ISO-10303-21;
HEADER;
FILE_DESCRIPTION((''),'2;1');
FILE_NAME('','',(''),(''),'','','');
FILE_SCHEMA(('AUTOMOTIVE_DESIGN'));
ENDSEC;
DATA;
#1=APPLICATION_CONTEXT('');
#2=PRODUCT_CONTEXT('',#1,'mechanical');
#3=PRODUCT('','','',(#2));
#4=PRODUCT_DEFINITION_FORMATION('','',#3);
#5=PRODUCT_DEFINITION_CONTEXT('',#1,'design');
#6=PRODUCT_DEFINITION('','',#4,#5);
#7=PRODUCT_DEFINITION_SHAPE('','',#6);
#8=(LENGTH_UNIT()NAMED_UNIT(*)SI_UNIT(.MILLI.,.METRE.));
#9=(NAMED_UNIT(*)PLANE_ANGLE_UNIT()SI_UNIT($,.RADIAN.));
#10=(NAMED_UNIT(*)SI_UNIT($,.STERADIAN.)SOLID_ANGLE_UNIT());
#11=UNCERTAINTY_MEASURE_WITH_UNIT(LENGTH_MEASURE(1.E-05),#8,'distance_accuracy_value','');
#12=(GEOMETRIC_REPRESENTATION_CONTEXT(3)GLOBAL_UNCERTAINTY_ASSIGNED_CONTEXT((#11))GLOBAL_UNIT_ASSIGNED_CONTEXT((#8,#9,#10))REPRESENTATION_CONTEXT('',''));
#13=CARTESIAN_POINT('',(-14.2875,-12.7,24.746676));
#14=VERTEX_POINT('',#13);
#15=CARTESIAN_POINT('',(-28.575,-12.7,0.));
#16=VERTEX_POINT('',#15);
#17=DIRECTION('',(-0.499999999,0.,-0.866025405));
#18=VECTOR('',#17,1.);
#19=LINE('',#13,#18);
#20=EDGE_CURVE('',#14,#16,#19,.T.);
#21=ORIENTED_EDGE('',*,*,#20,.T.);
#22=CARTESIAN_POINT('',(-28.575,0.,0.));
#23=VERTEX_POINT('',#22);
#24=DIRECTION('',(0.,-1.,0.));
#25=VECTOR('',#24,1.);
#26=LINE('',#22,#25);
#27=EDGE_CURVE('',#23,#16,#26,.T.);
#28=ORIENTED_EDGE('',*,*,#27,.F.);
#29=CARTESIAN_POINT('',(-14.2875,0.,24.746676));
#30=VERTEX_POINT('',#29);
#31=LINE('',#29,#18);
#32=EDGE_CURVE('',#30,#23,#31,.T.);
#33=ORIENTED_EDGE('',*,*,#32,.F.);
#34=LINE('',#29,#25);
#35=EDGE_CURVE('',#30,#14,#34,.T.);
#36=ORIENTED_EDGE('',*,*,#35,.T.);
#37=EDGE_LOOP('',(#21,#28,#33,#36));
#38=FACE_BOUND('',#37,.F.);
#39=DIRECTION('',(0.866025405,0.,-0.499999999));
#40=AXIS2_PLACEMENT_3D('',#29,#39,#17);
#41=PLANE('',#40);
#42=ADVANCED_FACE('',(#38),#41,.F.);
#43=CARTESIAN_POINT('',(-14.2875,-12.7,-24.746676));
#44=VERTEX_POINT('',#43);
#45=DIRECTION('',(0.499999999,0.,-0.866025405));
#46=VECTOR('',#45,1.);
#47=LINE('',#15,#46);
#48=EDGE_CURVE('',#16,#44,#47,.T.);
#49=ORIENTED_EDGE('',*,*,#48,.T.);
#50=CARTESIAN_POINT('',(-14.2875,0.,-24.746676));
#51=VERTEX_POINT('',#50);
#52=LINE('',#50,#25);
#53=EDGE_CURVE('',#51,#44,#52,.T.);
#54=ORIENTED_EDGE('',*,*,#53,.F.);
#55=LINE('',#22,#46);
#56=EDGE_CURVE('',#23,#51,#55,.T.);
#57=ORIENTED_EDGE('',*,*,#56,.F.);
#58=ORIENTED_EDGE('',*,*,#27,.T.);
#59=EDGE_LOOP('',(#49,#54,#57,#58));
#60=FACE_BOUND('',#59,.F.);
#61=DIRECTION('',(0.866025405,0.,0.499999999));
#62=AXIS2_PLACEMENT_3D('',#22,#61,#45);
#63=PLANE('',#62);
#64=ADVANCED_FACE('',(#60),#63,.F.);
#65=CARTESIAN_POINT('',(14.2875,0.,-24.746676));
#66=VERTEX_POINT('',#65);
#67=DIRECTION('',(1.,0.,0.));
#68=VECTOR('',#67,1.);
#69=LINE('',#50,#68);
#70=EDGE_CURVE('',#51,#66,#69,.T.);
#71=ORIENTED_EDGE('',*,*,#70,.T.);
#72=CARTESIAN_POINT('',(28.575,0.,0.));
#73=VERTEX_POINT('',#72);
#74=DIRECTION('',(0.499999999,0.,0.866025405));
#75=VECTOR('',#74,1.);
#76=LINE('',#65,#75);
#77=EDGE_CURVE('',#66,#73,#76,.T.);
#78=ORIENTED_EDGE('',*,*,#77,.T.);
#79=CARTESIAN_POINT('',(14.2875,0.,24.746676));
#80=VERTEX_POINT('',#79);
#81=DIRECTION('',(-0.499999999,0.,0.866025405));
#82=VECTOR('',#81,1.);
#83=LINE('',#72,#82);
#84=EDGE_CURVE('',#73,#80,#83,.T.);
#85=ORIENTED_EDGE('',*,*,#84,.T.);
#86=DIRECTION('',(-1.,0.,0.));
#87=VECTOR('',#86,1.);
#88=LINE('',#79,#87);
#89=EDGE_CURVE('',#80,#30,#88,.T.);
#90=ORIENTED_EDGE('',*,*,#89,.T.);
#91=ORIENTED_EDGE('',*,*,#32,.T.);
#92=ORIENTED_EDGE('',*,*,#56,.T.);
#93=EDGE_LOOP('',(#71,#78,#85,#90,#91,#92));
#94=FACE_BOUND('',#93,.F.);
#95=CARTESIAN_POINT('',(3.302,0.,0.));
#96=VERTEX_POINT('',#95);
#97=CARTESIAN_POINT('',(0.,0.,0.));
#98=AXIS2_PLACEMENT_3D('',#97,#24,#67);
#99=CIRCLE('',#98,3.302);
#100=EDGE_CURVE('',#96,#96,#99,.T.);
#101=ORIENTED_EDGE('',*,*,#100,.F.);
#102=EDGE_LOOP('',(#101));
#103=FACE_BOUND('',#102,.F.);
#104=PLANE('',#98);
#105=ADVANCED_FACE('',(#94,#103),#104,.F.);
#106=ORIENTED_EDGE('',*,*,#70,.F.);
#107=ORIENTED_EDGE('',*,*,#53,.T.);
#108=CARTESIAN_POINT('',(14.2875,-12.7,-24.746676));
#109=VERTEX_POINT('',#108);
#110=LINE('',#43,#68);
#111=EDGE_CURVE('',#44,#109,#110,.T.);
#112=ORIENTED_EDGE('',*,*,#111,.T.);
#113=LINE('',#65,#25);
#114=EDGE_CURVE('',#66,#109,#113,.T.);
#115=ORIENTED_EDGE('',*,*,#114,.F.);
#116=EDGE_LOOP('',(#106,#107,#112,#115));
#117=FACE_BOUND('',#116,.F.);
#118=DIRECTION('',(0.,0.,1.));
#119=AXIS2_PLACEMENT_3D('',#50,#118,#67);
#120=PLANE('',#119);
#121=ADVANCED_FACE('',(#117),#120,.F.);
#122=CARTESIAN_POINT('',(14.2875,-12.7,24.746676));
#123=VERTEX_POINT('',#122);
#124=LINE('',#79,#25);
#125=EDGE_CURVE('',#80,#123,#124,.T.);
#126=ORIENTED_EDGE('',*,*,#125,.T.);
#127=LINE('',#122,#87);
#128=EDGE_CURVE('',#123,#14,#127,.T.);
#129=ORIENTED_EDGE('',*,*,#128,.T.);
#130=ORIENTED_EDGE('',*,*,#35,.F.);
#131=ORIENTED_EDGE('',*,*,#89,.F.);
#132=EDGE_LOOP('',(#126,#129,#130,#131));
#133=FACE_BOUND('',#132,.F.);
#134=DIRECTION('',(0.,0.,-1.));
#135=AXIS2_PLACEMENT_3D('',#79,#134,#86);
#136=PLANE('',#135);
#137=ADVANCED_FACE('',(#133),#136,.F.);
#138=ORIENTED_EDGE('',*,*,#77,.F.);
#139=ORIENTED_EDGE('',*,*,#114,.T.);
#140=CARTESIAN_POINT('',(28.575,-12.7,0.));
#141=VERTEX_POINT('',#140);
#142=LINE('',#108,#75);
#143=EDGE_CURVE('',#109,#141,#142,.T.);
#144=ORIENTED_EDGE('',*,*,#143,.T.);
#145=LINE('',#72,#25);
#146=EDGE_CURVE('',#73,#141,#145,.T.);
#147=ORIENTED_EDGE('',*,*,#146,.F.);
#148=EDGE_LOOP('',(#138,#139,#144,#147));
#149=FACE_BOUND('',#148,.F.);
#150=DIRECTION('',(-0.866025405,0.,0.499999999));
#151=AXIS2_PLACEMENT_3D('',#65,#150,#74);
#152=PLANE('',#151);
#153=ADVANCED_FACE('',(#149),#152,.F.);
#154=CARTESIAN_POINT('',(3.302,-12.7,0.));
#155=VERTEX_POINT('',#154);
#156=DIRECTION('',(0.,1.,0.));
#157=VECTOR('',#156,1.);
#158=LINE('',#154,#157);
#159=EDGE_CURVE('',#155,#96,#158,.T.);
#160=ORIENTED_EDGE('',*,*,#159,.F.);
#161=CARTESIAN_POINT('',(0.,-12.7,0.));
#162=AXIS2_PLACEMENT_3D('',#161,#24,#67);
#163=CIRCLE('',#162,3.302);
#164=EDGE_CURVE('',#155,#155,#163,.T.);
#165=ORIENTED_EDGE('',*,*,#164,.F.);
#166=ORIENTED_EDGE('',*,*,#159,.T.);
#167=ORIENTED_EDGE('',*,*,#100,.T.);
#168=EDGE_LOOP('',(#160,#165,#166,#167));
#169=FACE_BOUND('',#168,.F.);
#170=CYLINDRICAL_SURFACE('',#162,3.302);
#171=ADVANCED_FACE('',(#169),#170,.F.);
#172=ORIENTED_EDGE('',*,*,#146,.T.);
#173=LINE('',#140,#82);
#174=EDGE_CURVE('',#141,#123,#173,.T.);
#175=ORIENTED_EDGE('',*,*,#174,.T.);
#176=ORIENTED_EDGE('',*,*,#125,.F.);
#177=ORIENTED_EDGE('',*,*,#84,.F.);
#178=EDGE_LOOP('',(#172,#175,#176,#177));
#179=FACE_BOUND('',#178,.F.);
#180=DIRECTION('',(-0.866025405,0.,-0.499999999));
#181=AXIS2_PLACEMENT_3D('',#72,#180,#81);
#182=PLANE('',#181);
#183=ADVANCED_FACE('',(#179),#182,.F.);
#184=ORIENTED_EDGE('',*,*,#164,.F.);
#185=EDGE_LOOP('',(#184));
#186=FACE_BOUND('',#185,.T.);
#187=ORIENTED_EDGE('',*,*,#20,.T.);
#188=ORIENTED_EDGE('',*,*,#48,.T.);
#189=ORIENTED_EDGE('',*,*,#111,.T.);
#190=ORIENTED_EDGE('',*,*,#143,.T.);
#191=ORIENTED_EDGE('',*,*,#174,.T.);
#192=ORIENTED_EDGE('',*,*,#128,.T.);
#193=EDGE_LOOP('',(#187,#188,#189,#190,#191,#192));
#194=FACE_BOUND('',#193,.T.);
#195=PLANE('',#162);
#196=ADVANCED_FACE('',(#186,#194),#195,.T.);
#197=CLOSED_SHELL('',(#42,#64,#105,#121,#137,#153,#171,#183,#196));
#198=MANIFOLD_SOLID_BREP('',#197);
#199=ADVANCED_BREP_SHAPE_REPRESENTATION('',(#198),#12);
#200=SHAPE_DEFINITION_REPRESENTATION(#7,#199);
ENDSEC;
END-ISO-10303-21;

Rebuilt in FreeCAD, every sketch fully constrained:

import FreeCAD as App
import Part
import Sketcher
Q = App.Units.Quantity

doc = App.newDocument("Part")
body = doc.addObject("PartDesign::Body", "Body")

sketch1 = body.newObject("Sketcher::SketchObject", "Sketch")
sketch1.AttachmentSupport = (doc.getObject("XZ_Plane"), [""])
sketch1.MapMode = "FlatFace"
sketch1.addGeometry([
    Part.LineSegment(App.Vector(14, -25, 0), App.Vector(29, 0, 0)),
    Part.LineSegment(App.Vector(29, 0, 0), App.Vector(14, 25, 0)),
    Part.LineSegment(App.Vector(14, 25, 0), App.Vector(-14, 25, 0)),
    Part.LineSegment(App.Vector(-14, 25, 0), App.Vector(-29, 0, 0)),
    Part.LineSegment(App.Vector(-29, 0, 0), App.Vector(-14, -25, 0)),
    Part.LineSegment(App.Vector(-14, -25, 0), App.Vector(14, -25, 0)),
], False)
sketch1.addConstraint([
    Sketcher.Constraint("Coincident", 0, 2, 1, 1),
    Sketcher.Constraint("Coincident", 1, 2, 2, 1),
    Sketcher.Constraint("Coincident", 2, 2, 3, 1),
    Sketcher.Constraint("Coincident", 3, 2, 4, 1),
    Sketcher.Constraint("Coincident", 4, 2, 5, 1),
    Sketcher.Constraint("Coincident", 5, 2, 0, 1),
    Sketcher.Constraint("Horizontal", 2),
    Sketcher.Constraint("Horizontal", 5),
    Sketcher.Constraint("Symmetric", 0, 2, 3, 2, -1, 1),
    Sketcher.Constraint("Symmetric", 1, 2, 4, 2, -1, 1),
    Sketcher.Constraint("PointOnObject", 0, 2, -1),
    Sketcher.Constraint("Parallel", 0, 3),
    Sketcher.Constraint("Vertical", 2, 2, 4, 2),
    Sketcher.Constraint("Angle", 0, Q("60 deg")),
    Sketcher.Constraint("DistanceX", 2, 2, 2, 1, Q("1.125 in")),
    Sketcher.Constraint("DistanceX", 3, 2, 0, 2, Q("2.25 in")),
])
pad1 = body.newObject("PartDesign::Pad", "Pad")
pad1.Profile = sketch1
pad1.Length = Q("0.5 in")

sketch2 = body.newObject("Sketcher::SketchObject", "Sketch001")
sketch2.AttachmentSupport = (doc.getObject("XZ_Plane"), [""])
sketch2.MapMode = "FlatFace"
sketch2.AttachmentOffset = App.Placement(App.Vector(0, 0, 0.5 * 25.4), App.Rotation())
sketch2.addGeometry(Part.Circle(App.Vector(0, 0, 0), App.Vector(0, 0, 1), 3.3), False)
sketch2.addConstraint([
    Sketcher.Constraint("Coincident", 0, 3, -1, 1),
    Sketcher.Constraint("Diameter", 0, Q("0.26 in")),
])
pocket1 = body.newObject("PartDesign::Pocket", "Pocket")
pocket1.Profile = sketch2
pocket1.Length = Q("1 in")

doc.recompute()
